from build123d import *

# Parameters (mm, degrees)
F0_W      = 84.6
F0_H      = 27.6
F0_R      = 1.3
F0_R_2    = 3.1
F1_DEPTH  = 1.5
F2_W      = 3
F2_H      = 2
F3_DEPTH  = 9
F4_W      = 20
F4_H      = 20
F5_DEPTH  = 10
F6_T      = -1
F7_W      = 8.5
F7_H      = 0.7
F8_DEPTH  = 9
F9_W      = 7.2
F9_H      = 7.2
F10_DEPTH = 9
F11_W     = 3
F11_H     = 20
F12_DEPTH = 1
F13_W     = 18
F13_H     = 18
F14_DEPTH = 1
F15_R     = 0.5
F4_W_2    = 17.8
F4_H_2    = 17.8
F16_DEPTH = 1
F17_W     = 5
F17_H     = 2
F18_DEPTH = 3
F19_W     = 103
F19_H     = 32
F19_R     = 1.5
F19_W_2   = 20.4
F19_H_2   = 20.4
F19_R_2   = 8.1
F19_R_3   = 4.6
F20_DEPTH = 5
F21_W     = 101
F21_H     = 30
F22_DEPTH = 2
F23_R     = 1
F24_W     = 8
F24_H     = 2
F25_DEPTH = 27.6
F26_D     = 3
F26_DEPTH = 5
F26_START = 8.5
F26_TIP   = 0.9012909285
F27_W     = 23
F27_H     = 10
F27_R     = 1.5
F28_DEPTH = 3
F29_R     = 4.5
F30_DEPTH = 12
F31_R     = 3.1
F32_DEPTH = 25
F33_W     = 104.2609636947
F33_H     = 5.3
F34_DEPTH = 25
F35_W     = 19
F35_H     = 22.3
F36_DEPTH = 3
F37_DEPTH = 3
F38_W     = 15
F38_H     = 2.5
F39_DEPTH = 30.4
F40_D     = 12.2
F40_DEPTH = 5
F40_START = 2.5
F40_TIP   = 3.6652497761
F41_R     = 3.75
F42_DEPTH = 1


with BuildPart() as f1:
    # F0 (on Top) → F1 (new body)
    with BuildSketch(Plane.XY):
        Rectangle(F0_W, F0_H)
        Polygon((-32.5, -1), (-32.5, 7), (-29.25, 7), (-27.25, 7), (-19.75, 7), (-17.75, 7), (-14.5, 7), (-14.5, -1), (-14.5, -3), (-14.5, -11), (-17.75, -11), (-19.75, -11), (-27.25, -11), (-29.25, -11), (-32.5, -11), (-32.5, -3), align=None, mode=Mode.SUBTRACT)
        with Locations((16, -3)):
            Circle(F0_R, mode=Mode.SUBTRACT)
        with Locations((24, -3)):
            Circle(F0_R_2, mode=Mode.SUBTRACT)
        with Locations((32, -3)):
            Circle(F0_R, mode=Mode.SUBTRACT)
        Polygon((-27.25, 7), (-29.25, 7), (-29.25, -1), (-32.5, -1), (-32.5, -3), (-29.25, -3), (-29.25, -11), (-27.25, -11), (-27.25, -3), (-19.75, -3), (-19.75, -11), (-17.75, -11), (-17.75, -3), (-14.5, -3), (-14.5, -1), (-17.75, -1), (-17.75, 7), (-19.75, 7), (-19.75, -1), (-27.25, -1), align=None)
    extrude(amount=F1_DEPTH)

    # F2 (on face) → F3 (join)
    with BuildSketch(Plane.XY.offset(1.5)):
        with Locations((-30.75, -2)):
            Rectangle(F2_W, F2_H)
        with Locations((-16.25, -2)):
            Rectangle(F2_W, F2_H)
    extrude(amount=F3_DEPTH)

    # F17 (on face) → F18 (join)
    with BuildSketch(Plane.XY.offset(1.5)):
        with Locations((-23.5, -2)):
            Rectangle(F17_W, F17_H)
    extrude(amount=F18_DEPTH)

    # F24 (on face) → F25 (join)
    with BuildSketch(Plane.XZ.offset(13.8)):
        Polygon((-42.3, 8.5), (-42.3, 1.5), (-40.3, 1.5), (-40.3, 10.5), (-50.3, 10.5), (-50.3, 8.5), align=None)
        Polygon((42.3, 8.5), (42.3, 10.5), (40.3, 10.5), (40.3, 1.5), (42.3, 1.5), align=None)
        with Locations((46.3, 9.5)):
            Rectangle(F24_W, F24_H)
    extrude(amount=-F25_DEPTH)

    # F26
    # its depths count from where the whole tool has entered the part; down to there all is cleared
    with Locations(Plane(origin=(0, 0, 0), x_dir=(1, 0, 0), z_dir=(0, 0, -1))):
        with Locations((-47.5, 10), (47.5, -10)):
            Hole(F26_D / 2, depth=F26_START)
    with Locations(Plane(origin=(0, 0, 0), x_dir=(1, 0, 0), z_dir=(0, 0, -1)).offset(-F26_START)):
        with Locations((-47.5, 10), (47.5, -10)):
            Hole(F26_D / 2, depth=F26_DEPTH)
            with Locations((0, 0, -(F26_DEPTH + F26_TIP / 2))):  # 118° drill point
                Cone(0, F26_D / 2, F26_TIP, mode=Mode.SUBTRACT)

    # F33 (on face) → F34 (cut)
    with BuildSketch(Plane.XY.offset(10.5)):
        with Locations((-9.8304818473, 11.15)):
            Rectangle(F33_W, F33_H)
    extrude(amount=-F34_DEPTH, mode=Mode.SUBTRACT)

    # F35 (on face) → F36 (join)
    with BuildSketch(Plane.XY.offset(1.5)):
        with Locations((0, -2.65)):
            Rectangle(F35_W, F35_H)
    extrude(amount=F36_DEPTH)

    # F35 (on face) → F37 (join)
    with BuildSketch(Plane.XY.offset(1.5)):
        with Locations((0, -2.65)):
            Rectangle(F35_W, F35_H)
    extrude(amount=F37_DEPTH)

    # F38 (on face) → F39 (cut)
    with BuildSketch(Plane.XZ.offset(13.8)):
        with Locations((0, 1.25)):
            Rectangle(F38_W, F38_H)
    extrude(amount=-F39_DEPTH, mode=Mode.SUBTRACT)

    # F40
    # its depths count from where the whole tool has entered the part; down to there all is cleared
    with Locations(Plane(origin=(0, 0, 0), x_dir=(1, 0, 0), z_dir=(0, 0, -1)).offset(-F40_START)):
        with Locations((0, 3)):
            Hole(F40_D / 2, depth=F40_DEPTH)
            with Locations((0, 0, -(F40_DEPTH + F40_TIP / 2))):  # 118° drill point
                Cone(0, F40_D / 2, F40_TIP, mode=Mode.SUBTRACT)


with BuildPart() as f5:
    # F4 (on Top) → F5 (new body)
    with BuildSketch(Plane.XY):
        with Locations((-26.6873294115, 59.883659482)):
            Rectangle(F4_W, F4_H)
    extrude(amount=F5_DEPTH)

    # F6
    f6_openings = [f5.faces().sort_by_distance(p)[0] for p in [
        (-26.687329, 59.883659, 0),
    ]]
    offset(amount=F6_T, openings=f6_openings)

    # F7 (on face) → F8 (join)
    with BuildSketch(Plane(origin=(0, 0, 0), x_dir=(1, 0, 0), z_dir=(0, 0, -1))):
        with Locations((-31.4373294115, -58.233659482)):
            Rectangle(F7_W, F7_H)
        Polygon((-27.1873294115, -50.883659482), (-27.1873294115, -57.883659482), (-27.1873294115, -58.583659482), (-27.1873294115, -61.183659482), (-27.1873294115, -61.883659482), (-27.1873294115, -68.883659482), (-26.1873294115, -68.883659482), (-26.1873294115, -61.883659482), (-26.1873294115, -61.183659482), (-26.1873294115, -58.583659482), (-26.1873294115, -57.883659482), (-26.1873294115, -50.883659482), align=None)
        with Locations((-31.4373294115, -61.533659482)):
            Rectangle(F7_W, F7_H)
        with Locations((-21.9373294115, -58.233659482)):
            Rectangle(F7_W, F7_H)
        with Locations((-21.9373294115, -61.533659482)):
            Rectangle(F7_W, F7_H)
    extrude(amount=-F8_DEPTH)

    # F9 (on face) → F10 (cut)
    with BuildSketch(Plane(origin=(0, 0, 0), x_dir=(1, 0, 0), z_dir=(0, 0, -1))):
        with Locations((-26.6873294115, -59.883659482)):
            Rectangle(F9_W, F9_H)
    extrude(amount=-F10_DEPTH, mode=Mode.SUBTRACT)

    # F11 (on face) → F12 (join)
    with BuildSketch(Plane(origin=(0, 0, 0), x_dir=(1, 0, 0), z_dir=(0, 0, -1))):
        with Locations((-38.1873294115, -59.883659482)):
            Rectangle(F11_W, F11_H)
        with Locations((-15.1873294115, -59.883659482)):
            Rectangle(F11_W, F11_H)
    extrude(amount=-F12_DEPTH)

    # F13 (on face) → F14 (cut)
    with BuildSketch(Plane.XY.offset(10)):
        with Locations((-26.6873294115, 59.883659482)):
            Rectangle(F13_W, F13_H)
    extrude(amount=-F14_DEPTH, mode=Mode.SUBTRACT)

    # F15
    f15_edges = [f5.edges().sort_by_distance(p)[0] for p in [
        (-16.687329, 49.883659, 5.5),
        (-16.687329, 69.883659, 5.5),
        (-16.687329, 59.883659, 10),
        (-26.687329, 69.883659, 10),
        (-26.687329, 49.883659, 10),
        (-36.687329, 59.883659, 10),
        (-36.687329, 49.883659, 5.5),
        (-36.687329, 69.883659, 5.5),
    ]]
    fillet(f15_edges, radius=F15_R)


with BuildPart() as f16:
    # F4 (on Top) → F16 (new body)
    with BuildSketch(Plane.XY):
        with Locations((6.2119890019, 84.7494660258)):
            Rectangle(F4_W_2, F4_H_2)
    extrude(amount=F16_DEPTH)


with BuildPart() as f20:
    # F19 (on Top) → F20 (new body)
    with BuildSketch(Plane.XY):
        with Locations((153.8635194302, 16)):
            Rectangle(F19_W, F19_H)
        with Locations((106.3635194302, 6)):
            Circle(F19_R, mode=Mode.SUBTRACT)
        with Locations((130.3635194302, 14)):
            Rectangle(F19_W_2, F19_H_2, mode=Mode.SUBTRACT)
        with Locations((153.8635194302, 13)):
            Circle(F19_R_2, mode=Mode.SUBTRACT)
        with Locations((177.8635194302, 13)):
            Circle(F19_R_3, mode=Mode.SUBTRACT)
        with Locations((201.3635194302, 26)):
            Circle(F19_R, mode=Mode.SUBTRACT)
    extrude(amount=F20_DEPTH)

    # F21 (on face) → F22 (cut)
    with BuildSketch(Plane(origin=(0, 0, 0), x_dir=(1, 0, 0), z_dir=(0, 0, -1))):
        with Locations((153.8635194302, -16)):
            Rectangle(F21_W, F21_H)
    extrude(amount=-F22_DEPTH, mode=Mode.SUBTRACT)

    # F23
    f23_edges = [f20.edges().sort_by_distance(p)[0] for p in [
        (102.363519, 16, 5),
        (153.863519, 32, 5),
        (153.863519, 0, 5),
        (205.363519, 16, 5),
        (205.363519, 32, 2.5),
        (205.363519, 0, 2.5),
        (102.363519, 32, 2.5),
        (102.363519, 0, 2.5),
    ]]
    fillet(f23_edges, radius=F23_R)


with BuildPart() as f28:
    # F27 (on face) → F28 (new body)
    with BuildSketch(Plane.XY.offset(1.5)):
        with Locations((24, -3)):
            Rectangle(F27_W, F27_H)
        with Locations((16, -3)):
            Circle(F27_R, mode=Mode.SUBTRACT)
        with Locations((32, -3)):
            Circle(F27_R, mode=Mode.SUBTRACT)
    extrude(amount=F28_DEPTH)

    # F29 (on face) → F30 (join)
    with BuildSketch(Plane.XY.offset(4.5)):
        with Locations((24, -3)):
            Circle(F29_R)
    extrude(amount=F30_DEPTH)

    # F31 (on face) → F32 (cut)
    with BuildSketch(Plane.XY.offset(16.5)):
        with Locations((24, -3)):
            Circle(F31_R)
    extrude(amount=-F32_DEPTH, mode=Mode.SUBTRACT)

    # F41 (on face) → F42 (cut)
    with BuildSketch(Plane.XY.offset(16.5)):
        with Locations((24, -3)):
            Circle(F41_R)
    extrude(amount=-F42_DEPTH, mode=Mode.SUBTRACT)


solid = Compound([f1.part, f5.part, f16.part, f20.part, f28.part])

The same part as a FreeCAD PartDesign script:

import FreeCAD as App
import Part
import Sketcher
Q = App.Units.Quantity


def edges_at(feature, points):
    """Names of the edges that pass closest to the given points."""
    edges = feature.Shape.Edges
    near = lambda p: min(range(len(edges)), key=lambda i: edges[i].distToShape(Part.Vertex(*p))[0])
    return sorted({f"Edge{near(p) + 1}" for p in points})


def faces_at(feature, points):
    """Names of the faces that lie closest to the given points."""
    faces = feature.Shape.Faces
    near = lambda p: min(range(len(faces)), key=lambda i: faces[i].distToShape(Part.Vertex(*p))[0])
    return sorted({f"Face{near(p) + 1}" for p in points})


def add_polygon(sketch, points):
    """Adds a closed chain of lines whose ends are joined by coincident constraints."""
    first, n = sketch.GeometryCount, len(points)
    for a, b in zip(points, points[1:] + points[:1]):
        sketch.addGeometry(Part.LineSegment(App.Vector(*a, 0), App.Vector(*b, 0)), False)
    for i in range(n):
        sketch.addConstraint(Sketcher.Constraint("Coincident", first + i, 2, first + (i + 1) % n, 1))

doc = App.newDocument("Part")
params = doc.addObject("Spreadsheet::Sheet", "Params")
for row, (alias, value) in enumerate([
    ("sketch1_diameter", "2.6 mm"),
    ("sketch1_diameter2", "6.2 mm"),
    ("sketch1_height", "8 mm"),
    ("sketch1_width", "84.6 mm"),
    ("sketch1_width2", "7.5 mm"),
    ("pad1_length", "1.5 mm"),
    ("sketch2_width", "3 mm"),
    ("sketch2_height", "2 mm"),
    ("pad2_length", "9 mm"),
    ("sketch3_width", "5 mm"),
    ("sketch3_height", "2 mm"),
    ("pad3_length", "3 mm"),
    ("sketch4_width", "2 mm"),
    ("sketch4_width2", "10 mm"),
    ("sketch4_height", "7 mm"),
    ("pad4_length", "27.6 mm"),
    ("sketch5_diameter", "3 mm"),
    ("hole_diameter", "3 mm"),
    ("hole_depth", "8.5 mm"),
    ("sketch6_diameter", "3 mm"),
    ("hole2_diameter", "3 mm"),
    ("hole2_depth", "5 mm"),
    ("sketch7_height", "5.3 mm"),
    ("pocket1_length", "25 mm"),
    ("sketch8_width", "19 mm"),
    ("sketch8_height", "22.3 mm"),
    ("pad5_length", "3 mm"),
    ("sketch9_width", "19 mm"),
    ("sketch9_height", "22.3 mm"),
    ("pad6_length", "3 mm"),
    ("sketch10_width", "15 mm"),
    ("sketch10_height", "2.5 mm"),
    ("pocket2_length", "30.4 mm"),
    ("sketch11_diameter", "12.2 mm"),
    ("hole3_diameter", "12.2 mm"),
    ("hole3_depth", "5 mm"),
    ("sketch12_width", "20 mm"),
    ("pad7_length", "10 mm"),
    ("thickness_wall", "1 mm"),
    ("sketch13_width", "1 mm"),
    ("sketch13_height", "7 mm"),
    ("sketch13_width2", "8.5 mm"),
    ("sketch13_height2", "0.7 mm"),
    ("sketch13_height3", "2.6 mm"),
    ("pad8_length", "9 mm"),
    ("sketch14_width", "7.2 mm"),
    ("pocket3_length", "9 mm"),
    ("sketch15_width", "3 mm"),
    ("sketch15_height", "20 mm"),
    ("pad9_length", "1 mm"),
    ("sketch16_width", "18 mm"),
    ("pocket4_length", "1 mm"),
    ("fillet_radius", "0.5 mm"),
    ("sketch17_width", "17.8 mm"),
    ("pad10_length", "1 mm"),
    ("sketch18_diameter", "3 mm"),
    ("sketch18_diameter2", "16.2 mm"),
    ("sketch18_diameter3", "9.2 mm"),
    ("sketch18_width", "103 mm"),
    ("sketch18_height", "32 mm"),
    ("pad11_length", "5 mm"),
    ("sketch19_width", "101 mm"),
    ("sketch19_height", "30 mm"),
    ("pocket5_length", "2 mm"),
    ("fillet2_radius", "1 mm"),
    ("sketch20_diameter", "3 mm"),
    ("sketch20_width", "23 mm"),
    ("sketch20_height", "10 mm"),
    ("pad12_length", "3 mm"),
    ("sketch21_diameter", "9 mm"),
    ("pad13_length", "12 mm"),
    ("sketch22_diameter", "6.2 mm"),
    ("pocket6_length", "25 mm"),
    ("sketch23_diameter", "7.5 mm"),
    ("pocket7_length", "1 mm"),
], start=1):
    params.set(f"A{row}", alias)
    params.set(f"B{row}", "=" + value)
    params.setAlias(f"B{row}", alias)

body = doc.addObject("PartDesign::Body", "Body")

# Sketch on XY plane
sketch1 = doc.addObject("Sketcher::SketchObject", "Sketch")
body.addObject(sketch1)
sketch1.AttachmentSupport = (doc.XY_Plane, [""])
sketch1.MapMode = "FlatFace"
add_polygon(sketch1, [(-42.3, 13.8), (-42.3, -13.8), (42.3, -13.8), (42.3, 13.8)])  # lines 0-3
sketch1.addGeometry(Part.Circle(App.Vector(16, -3, 0), App.Vector(0, 0, 1), 1.3), False)  # 4
sketch1.addGeometry(Part.Circle(App.Vector(24, -3, 0), App.Vector(0, 0, 1), 3.1), False)  # 5
sketch1.addGeometry(Part.Circle(App.Vector(32, -3, 0), App.Vector(0, 0, 1), 1.3), False)  # 6
add_polygon(sketch1, [(-32.5, -11), (-32.5, -3), (-29.2, -3), (-29.2, -11)])  # lines 7-10
add_polygon(sketch1, [(-32.5, -1), (-32.5, 7), (-29.2, 7), (-29.2, -1)])  # lines 11-14
add_polygon(sketch1, [(-14.5, -11), (-17.8, -11), (-17.8, -3), (-14.5, -3)])  # lines 15-18
add_polygon(sketch1, [(-19.8, -11), (-27.2, -11), (-27.2, -3), (-19.8, -3)])  # lines 19-22
add_polygon(sketch1, [(-27.2, 7), (-19.8, 7), (-19.8, -1), (-27.2, -1)])  # lines 23-26
add_polygon(sketch1, [(-17.8, 7), (-14.5, 7), (-14.5, -1), (-17.8, -1)])  # lines 27-30
sketch1.addConstraint([
    Sketcher.Constraint("Vertical", 0),
    Sketcher.Constraint("Horizontal", 1),
    Sketcher.Constraint("Vertical", 2),
    Sketcher.Constraint("Horizontal", 3),
    Sketcher.Constraint("Vertical", 7),
    Sketcher.Constraint("Horizontal", 8),
    Sketcher.Constraint("Vertical", 9),
    Sketcher.Constraint("Horizontal", 10),
    Sketcher.Constraint("Vertical", 11),
    Sketcher.Constraint("Horizontal", 12),
    Sketcher.Constraint("Vertical", 13),
    Sketcher.Constraint("Horizontal", 14),
    Sketcher.Constraint("Horizontal", 15),
    Sketcher.Constraint("Vertical", 16),
    Sketcher.Constraint("Horizontal", 17),
    Sketcher.Constraint("Vertical", 18),
    Sketcher.Constraint("Horizontal", 19),
    Sketcher.Constraint("Vertical", 20),
    Sketcher.Constraint("Horizontal", 21),
    Sketcher.Constraint("Vertical", 22),
    Sketcher.Constraint("Horizontal", 23),
    Sketcher.Constraint("Vertical", 24),
    Sketcher.Constraint("Horizontal", 25),
    Sketcher.Constraint("Vertical", 26),
    Sketcher.Constraint("Horizontal", 27),
    Sketcher.Constraint("Vertical", 28),
    Sketcher.Constraint("Horizontal", 29),
    Sketcher.Constraint("Vertical", 30),
    Sketcher.Constraint("Equal", 4, 6),
    Sketcher.Constraint("Symmetric", 0, 2, 2, 2, -1, 1),
    Sketcher.Constraint("Horizontal", 4, 3, 5, 3),
    Sketcher.Constraint("Horizontal", 5, 3, 6, 3),
    Sketcher.Constraint("Horizontal", 6, 3, 7, 2),
    Sketcher.Constraint("Horizontal", 10, 2, 15, 2),
    Sketcher.Constraint("Horizontal", 8, 2, 16, 2),
    Sketcher.Constraint("Horizontal", 18, 2, 19, 2),
    Sketcher.Constraint("Horizontal", 17, 2, 20, 2),
    Sketcher.Constraint("Horizontal", 12, 2, 23, 2),
    Sketcher.Constraint("Horizontal", 14, 2, 24, 2),
    Sketcher.Constraint("Horizontal", 26, 2, 27, 2),
    Sketcher.Constraint("Horizontal", 25, 2, 28, 2),
    Sketcher.Constraint("Vertical", 10, 2, 11, 2),
    Sketcher.Constraint("Vertical", 9, 2, 12, 2),
    Sketcher.Constraint("Vertical", 22, 2, 23, 2),
    Sketcher.Constraint("Vertical", 20, 2, 25, 2),
    Sketcher.Constraint("Vertical", 18, 2, 27, 2),
    Sketcher.Constraint("Vertical", 16, 2, 29, 2),
    Sketcher.Constraint("Equal", 14, 15),
    Sketcher.Constraint("Equal", 9, 11),
    Sketcher.Constraint("Diameter", 4, Q("2.6 mm")),
    Sketcher.Constraint("Diameter", 5, Q("6.2 mm")),
    Sketcher.Constraint("DistanceY", 7, 1, 7, 2, Q("8 mm")),
    Sketcher.Constraint("DistanceX", 1, 1, 1, 2, Q("84.6 mm")),
    Sketcher.Constraint("DistanceX", 19, 2, 19, 1, Q("7.5 mm")),
    Sketcher.Constraint("DistanceY", 0, 2, 0, 1, Q("27.6 mm")),
    Sketcher.Constraint("DistanceX", -1, 1, 4, 3, Q("16 mm")),
    Sketcher.Constraint("DistanceY", 4, 3, -1, 1, Q("3 mm")),
    Sketcher.Constraint("DistanceX", -1, 1, 5, 3, Q("24 mm")),
    Sketcher.Constraint("DistanceX", -1, 1, 6, 3, Q("32 mm")),
    Sketcher.Constraint("DistanceY", -1, 1, 11, 2, Q("7 mm")),
    Sketcher.Constraint("DistanceX", 9, 2, 19, 2, Q("2 mm")),
    Sketcher.Constraint("DistanceX", 21, 2, 16, 2, Q("2 mm")),
    Sketcher.Constraint("DistanceX", 8, 1, 8, 2, Q("3.25 mm")),
    Sketcher.Constraint("DistanceX", 7, 2, -1, 1, Q("32.5 mm")),
])
sketch1.setExpression("Constraints[77]", "Params.sketch1_diameter")
sketch1.setExpression("Constraints[78]", "Params.sketch1_diameter2")
sketch1.setExpression("Constraints[79]", "Params.sketch1_height")
sketch1.setExpression("Constraints[80]", "Params.sketch1_width")
sketch1.setExpression("Constraints[81]", "Params.sketch1_width2")
pad1 = doc.addObject("PartDesign::Pad", "Pad")
body.addObject(pad1)
pad1.Profile = sketch1
pad1.setExpression("Length", "Params.pad1_length")

# Sketch on XY plane
sketch2 = doc.addObject("Sketcher::SketchObject", "Sketch001")
body.addObject(sketch2)
sketch2.AttachmentSupport = (doc.XY_Plane, [""])
sketch2.MapMode = "FlatFace"
sketch2.AttachmentOffset = App.Placement(App.Vector(0, 0, 1.5), App.Rotation())
add_polygon(sketch2, [(-32.2, -1), (-32.2, -3), (-29.2, -3), (-29.2, -1)])  # lines 0-3
add_polygon(sketch2, [(-17.8, -1), (-17.8, -3), (-14.8, -3), (-14.8, -1)])  # lines 4-7
sketch2.addConstraint([
    Sketcher.Constraint("Vertical", 0),
    Sketcher.Constraint("Horizontal", 1),
    Sketcher.Constraint("Vertical", 2),
    Sketcher.Constraint("Horizontal", 3),
    Sketcher.Constraint("Vertical", 4),
    Sketcher.Constraint("Horizontal", 5),
    Sketcher.Constraint("Vertical", 6),
    Sketcher.Constraint("Horizontal", 7),
    Sketcher.Constraint("Horizontal", 1, 2, 4, 2),
    Sketcher.Constraint("Horizontal", 3, 2, 6, 2),
    Sketcher.Constraint("Equal", 3, 5),
    Sketcher.Constraint("DistanceX", 1, 1, 1, 2, Q("3 mm")),
    Sketcher.Constraint("DistanceY", 0, 2, 0, 1, Q("2 mm")),
    Sketcher.Constraint("DistanceY", 0, 2, -1, 1, Q("3 mm")),
    Sketcher.Constraint("DistanceX", 1, 2, 4, 2, Q("11.5 mm")),
    Sketcher.Constraint("DistanceX", 0, 2, -1, 1, Q("32.25 mm")),
])
sketch2.setExpression("Constraints[19]", "Params.sketch2_width")
sketch2.setExpression("Constraints[20]", "Params.sketch2_height")
pad2 = doc.addObject("PartDesign::Pad", "Pad001")
body.addObject(pad2)
pad2.Profile = sketch2
pad2.setExpression("Length", "Params.pad2_length")

# Sketch on XY plane
sketch3 = doc.addObject("Sketcher::SketchObject", "Sketch002")
body.addObject(sketch3)
sketch3.AttachmentSupport = (doc.XY_Plane, [""])
sketch3.MapMode = "FlatFace"
sketch3.AttachmentOffset = App.Placement(App.Vector(0, 0, 1.5), App.Rotation())
add_polygon(sketch3, [(-26, -1), (-26, -3), (-21, -3), (-21, -1)])  # lines 0-3
sketch3.addConstraint([
    Sketcher.Constraint("Vertical", 0),
    Sketcher.Constraint("Horizontal", 1),
    Sketcher.Constraint("Vertical", 2),
    Sketcher.Constraint("Horizontal", 3),
    Sketcher.Constraint("DistanceX", 1, 1, 1, 2, Q("5 mm")),
    Sketcher.Constraint("DistanceY", 0, 2, 0, 1, Q("2 mm")),
    Sketcher.Constraint("DistanceX", 0, 2, -1, 1, Q("26 mm")),
    Sketcher.Constraint("DistanceY", 0, 2, -1, 1, Q("3 mm")),
])
sketch3.setExpression("Constraints[8]", "Params.sketch3_width")
sketch3.setExpression("Constraints[9]", "Params.sketch3_height")
pad3 = doc.addObject("PartDesign::Pad", "Pad002")
body.addObject(pad3)
pad3.Profile = sketch3
pad3.setExpression("Length", "Params.pad3_length")

# Sketch on XZ plane
sketch4 = doc.addObject("Sketcher::SketchObject", "Sketch003")
body.addObject(sketch4)
sketch4.AttachmentSupport = (doc.XZ_Plane, [""])
sketch4.MapMode = "FlatFace"
sketch4.AttachmentOffset = App.Placement(App.Vector(0, 0, 13.8), App.Rotation())
add_polygon(sketch4, [(-42.3, 8.5), (-42.3, 1.5), (-40.3, 1.5), (-40.3, 10.5), (-50.3, 10.5), (-50.3, 8.5)])  # lines 0-5
add_polygon(sketch4, [(40.3, 10.5), (40.3, 1.5), (42.3, 1.5), (42.3, 8.5), (50.3, 8.5), (50.3, 10.5)])  # lines 6-11
sketch4.addConstraint([
    Sketcher.Constraint("Vertical", 0),
    Sketcher.Constraint("Horizontal", 1),
    Sketcher.Constraint("Vertical", 2),
    Sketcher.Constraint("Horizontal", 3),
    Sketcher.Constraint("Vertical", 4),
    Sketcher.Constraint("Horizontal", 5),
    Sketcher.Constraint("Vertical", 6),
    Sketcher.Constraint("Horizontal", 7),
    Sketcher.Constraint("Vertical", 8),
    Sketcher.Constraint("Horizontal", 9),
    Sketcher.Constraint("Vertical", 10),
    Sketcher.Constraint("Horizontal", 11),
    Sketcher.Constraint("Symmetric", 1, 2, 6, 2, -2),
    Sketcher.Constraint("Symmetric", 5, 2, 8, 2, -2),
    Sketcher.Constraint("Symmetric", 3, 2, 10, 2, -2),
    Sketcher.Constraint("Equal", 7, 4),
    Sketcher.Constraint("DistanceX", 1, 1, 1, 2, Q("2 mm")),
    Sketcher.Constraint("DistanceX", 3, 2, 3, 1, Q("10 mm")),
    Sketcher.Constraint("DistanceY", 0, 2, 0, 1, Q("7 mm")),
    Sketcher.Constraint("DistanceX", 0, 2, -1, 1, Q("42.3 mm")),
    Sketcher.Constraint("DistanceY", -1, 1, 0, 2, Q("1.5 mm")),
])
sketch4.setExpression("Constraints[28]", "Params.sketch4_width")
sketch4.setExpression("Constraints[29]", "Params.sketch4_width2")
sketch4.setExpression("Constraints[30]", "Params.sketch4_height")
pad4 = doc.addObject("PartDesign::Pad", "Pad003")
body.addObject(pad4)
pad4.Profile = sketch4
pad4.setExpression("Length", "Params.pad4_length")
pad4.Reversed = True

# Sketch on XY plane
sketch5 = doc.addObject("Sketcher::SketchObject", "Sketch004")
body.addObject(sketch5)
sketch5.AttachmentSupport = (doc.XY_Plane, [""])
sketch5.MapMode = "FlatFace"
sketch5.addGeometry([
    Part.Circle(App.Vector(-47.5, -10, 0), App.Vector(0, 0, 1), 1.5),
    Part.Circle(App.Vector(47.5, 10, 0), App.Vector(0, 0, 1), 1.5),
], False)
sketch5.addConstraint([
    Sketcher.Constraint("Equal", 0, 1),
    Sketcher.Constraint("Symmetric", 0, 3, 1, 3, -1, 1),
    Sketcher.Constraint("Diameter", 0, Q("3 mm")),
    Sketcher.Constraint("DistanceY", 0, 3, -1, 1, Q("10 mm")),
    Sketcher.Constraint("DistanceX", 0, 3, 1, 3, Q("95 mm")),
])
sketch5.setExpression("Constraints[2]", "Params.sketch5_diameter")
doc.recompute()
hole = doc.addObject("PartDesign::Hole", "Hole")
body.addObject(hole)
hole.Profile = sketch5
hole.ThreadType = "None"
hole.setExpression("Diameter", "Params.hole_diameter")
hole.DepthType = "Dimension"
hole.setExpression("Depth", "Params.hole_depth")
hole.DrillPoint = "Flat"
hole.Reversed = True

# Sketch on XY plane
sketch6 = doc.addObject("Sketcher::SketchObject", "Sketch005")
body.addObject(sketch6)
sketch6.AttachmentSupport = (doc.XY_Plane, [""])
sketch6.MapMode = "FlatFace"
sketch6.AttachmentOffset = App.Placement(App.Vector(0, 0, 8.5), App.Rotation())
sketch6.addGeometry([
    Part.Circle(App.Vector(-47.5, -10, 0), App.Vector(0, 0, 1), 1.5),
    Part.Circle(App.Vector(47.5, 10, 0), App.Vector(0, 0, 1), 1.5),
], False)
sketch6.addConstraint([
    Sketcher.Constraint("Equal", 0, 1),
    Sketcher.Constraint("Symmetric", 0, 3, 1, 3, -1, 1),
    Sketcher.Constraint("Diameter", 0, Q("3 mm")),
    Sketcher.Constraint("DistanceY", 0, 3, -1, 1, Q("10 mm")),
    Sketcher.Constraint("DistanceX", 0, 3, 1, 3, Q("95 mm")),
])
sketch6.setExpression("Constraints[2]", "Params.sketch6_diameter")
doc.recompute()
hole2 = doc.addObject("PartDesign::Hole", "Hole001")
body.addObject(hole2)
hole2.Profile = sketch6
hole2.ThreadType = "None"
hole2.setExpression("Diameter", "Params.hole2_diameter")
hole2.DepthType = "Dimension"
hole2.setExpression("Depth", "Params.hole2_depth")
hole2.DrillPoint = "Angled"
hole2.DrillPointAngle = 118
hole2.Reversed = True

# Sketch on XY plane
sketch7 = doc.addObject("Sketcher::SketchObject", "Sketch006")
body.addObject(sketch7)
sketch7.AttachmentSupport = (doc.XY_Plane, [""])
sketch7.MapMode = "FlatFace"
sketch7.AttachmentOffset = App.Placement(App.Vector(0, 0, 10.5), App.Rotation())
add_polygon(sketch7, [(-62, 14), (-62, 8), (42, 8), (42, 14)])  # lines 0-3
sketch7.addConstraint([
    Sketcher.Constraint("Vertical", 0),
    Sketcher.Constraint("Horizontal", 1),
    Sketcher.Constraint("Vertical", 2),
    Sketcher.Constraint("Horizontal", 3),
    Sketcher.Constraint("DistanceY", 0, 2, 0, 1, Q("5.3 mm")),
    Sketcher.Constraint("DistanceY", -1, 1, 0, 2, Q("8.5 mm")),
    Sketcher.Constraint("DistanceX", -1, 1, 1, 2, Q("42.3 mm")),
    Sketcher.Constraint("DistanceX", 1, 1, 1, 2, Q("104.260964 mm")),
])
sketch7.setExpression("Constraints[8]", "Params.sketch7_height")
pocket1 = doc.addObject("PartDesign::Pocket", "Pocket")
body.addObject(pocket1)
pocket1.Profile = sketch7
pocket1.setExpression("Length", "Params.pocket1_length")

# Sketch on XY plane
sketch8 = doc.addObject("Sketcher::SketchObject", "Sketch007")
body.addObject(sketch8)
sketch8.AttachmentSupport = (doc.XY_Plane, [""])
sketch8.MapMode = "FlatFace"
sketch8.AttachmentOffset = App.Placement(App.Vector(0, 0, 1.5), App.Rotation())
add_polygon(sketch8, [(-10, 8), (-10, -14), (10, -14), (10, 8)])  # lines 0-3
sketch8.addConstraint([
    Sketcher.Constraint("Vertical", 0),
    Sketcher.Constraint("Horizontal", 1),
    Sketcher.Constraint("Vertical", 2),
    Sketcher.Constraint("Horizontal", 3),
    Sketcher.Constraint("DistanceX", 1, 1, 1, 2, Q("19 mm")),
    Sketcher.Constraint("DistanceY", 0, 2, 0, 1, Q("22.3 mm")),
    Sketcher.Constraint("DistanceX", 0, 2, -1, 1, Q("9.5 mm")),
    Sketcher.Constraint("DistanceY", 0, 2, -1, 1, Q("13.8 mm")),
])
sketch8.setExpression("Constraints[8]", "Params.sketch8_width")
sketch8.setExpression("Constraints[9]", "Params.sketch8_height")
pad5 = doc.addObject("PartDesign::Pad", "Pad004")
body.addObject(pad5)
pad5.Profile = sketch8
pad5.setExpression("Length", "Params.pad5_length")

# Sketch on XY plane
sketch9 = doc.addObject("Sketcher::SketchObject", "Sketch008")
body.addObject(sketch9)
sketch9.AttachmentSupport = (doc.XY_Plane, [""])
sketch9.MapMode = "FlatFace"
sketch9.AttachmentOffset = App.Placement(App.Vector(0, 0, 1.5), App.Rotation())
add_polygon(sketch9, [(-10, 8), (-10, -14), (10, -14), (10, 8)])  # lines 0-3
sketch9.addConstraint([
    Sketcher.Constraint("Vertical", 0),
    Sketcher.Constraint("Horizontal", 1),
    Sketcher.Constraint("Vertical", 2),
    Sketcher.Constraint("Horizontal", 3),
    Sketcher.Constraint("DistanceX", 1, 1, 1, 2, Q("19 mm")),
    Sketcher.Constraint("DistanceY", 0, 2, 0, 1, Q("22.3 mm")),
    Sketcher.Constraint("DistanceX", 0, 2, -1, 1, Q("9.5 mm")),
    Sketcher.Constraint("DistanceY", 0, 2, -1, 1, Q("13.8 mm")),
])
sketch9.setExpression("Constraints[8]", "Params.sketch9_width")
sketch9.setExpression("Constraints[9]", "Params.sketch9_height")
pad6 = doc.addObject("PartDesign::Pad", "Pad005")
body.addObject(pad6)
pad6.Profile = sketch9
pad6.setExpression("Length", "Params.pad6_length")

# Sketch on XZ plane
sketch10 = doc.addObject("Sketcher::SketchObject", "Sketch009")
body.addObject(sketch10)
sketch10.AttachmentSupport = (doc.XZ_Plane, [""])
sketch10.MapMode = "FlatFace"
sketch10.AttachmentOffset = App.Placement(App.Vector(0, 0, 13.8), App.Rotation())
add_polygon(sketch10, [(-7.5, 2.5), (-7.5, 0), (7.5, 0), (7.5, 2.5)])  # lines 0-3
sketch10.addConstraint([
    Sketcher.Constraint("Vertical", 0),
    Sketcher.Constraint("Horizontal", 1),
    Sketcher.Constraint("Vertical", 2),
    Sketcher.Constraint("Horizontal", 3),
    Sketcher.Constraint("Symmetric", 0, 2, 1, 2, -1, 1),
    Sketcher.Constraint("DistanceX", 1, 1, 1, 2, Q("15 mm")),
    Sketcher.Constraint("DistanceY", 0, 2, 0, 1, Q("2.5 mm")),
])
sketch10.setExpression("Constraints[9]", "Params.sketch10_width")
sketch10.setExpression("Constraints[10]", "Params.sketch10_height")
pocket2 = doc.addObject("PartDesign::Pocket", "Pocket001")
body.addObject(pocket2)
pocket2.Profile = sketch10
pocket2.setExpression("Length", "Params.pocket2_length")

# Sketch on XY plane
sketch11 = doc.addObject("Sketcher::SketchObject", "Sketch010")
body.addObject(sketch11)
sketch11.AttachmentSupport = (doc.XY_Plane, [""])
sketch11.MapMode = "FlatFace"
sketch11.AttachmentOffset = App.Placement(App.Vector(0, 0, 2.5), App.Rotation())
sketch11.addGeometry(Part.Circle(App.Vector(0, -3, 0), App.Vector(0, 0, 1), 6), False)
sketch11.addConstraint([
    Sketcher.Constraint("PointOnObject", 0, 3, -2),
    Sketcher.Constraint("Diameter", 0, Q("12.2 mm")),
    Sketcher.Constraint("DistanceY", 0, 3, -1, 1, Q("3 mm")),
])
sketch11.setExpression("Constraints[1]", "Params.sketch11_diameter")
doc.recompute()
hole3 = doc.addObject("PartDesign::Hole", "Hole002")
body.addObject(hole3)
hole3.Profile = sketch11
hole3.ThreadType = "None"
hole3.setExpression("Diameter", "Params.hole3_diameter")
hole3.DepthType = "Dimension"
hole3.setExpression("Depth", "Params.hole3_depth")
hole3.DrillPoint = "Angled"
hole3.DrillPointAngle = 118
hole3.Reversed = True
body2 = doc.addObject("PartDesign::Body", "Body001")

# Sketch on XY plane
sketch12 = doc.addObject("Sketcher::SketchObject", "Sketch011")
body2.addObject(sketch12)
sketch12.AttachmentSupport = (doc.getObject("XY_Plane001"), [""])
sketch12.MapMode = "FlatFace"
add_polygon(sketch12, [(-37, 70), (-37, 50), (-17, 50), (-17, 70)])  # lines 0-3
sketch12.addConstraint([
    Sketcher.Constraint("Vertical", 0),
    Sketcher.Constraint("Horizontal", 1),
    Sketcher.Constraint("Vertical", 2),
    Sketcher.Constraint("Horizontal", 3),
    Sketcher.Constraint("Equal", 3, 0),
    Sketcher.Constraint("DistanceX", 1, 1, 1, 2, Q("20 mm")),
    Sketcher.Constraint("DistanceX", 0, 2, -1, 1, Q("36.687329 mm")),
    Sketcher.Constraint("DistanceY", -1, 1, 0, 2, Q("49.883659 mm")),
])
sketch12.setExpression("Constraints[9]", "Params.sketch12_width")
pad7 = doc.addObject("PartDesign::Pad", "Pad006")
body2.addObject(pad7)
pad7.Profile = sketch12
pad7.setExpression("Length", "Params.pad7_length")
doc.recompute()

thickness = doc.addObject("PartDesign::Thickness", "Thickness")
body2.addObject(thickness)
thickness.Base = (pad7, faces_at(pad7, [(-26.687, 59.884, 0)]))
thickness.setExpression("Value", "Params.thickness_wall")
thickness.Reversed = True
thickness.Join = "Arc"

# Sketch on XY plane
sketch13 = doc.addObject("Sketcher::SketchObject", "Sketch012")
body2.addObject(sketch13)
sketch13.AttachmentSupport = (doc.getObject("XY_Plane001"), [""])
sketch13.MapMode = "FlatFace"
add_polygon(sketch13, [(-35.7, 57.9), (-35.7, 58.6), (-27.2, 58.6), (-27.2, 61.2), (-35.7, 61.2), (-35.7, 61.9), (-27.2, 61.9), (-27.2, 68.9), (-26.2, 68.9), (-26.2, 61.9), (-17.7, 61.9), (-17.7, 61.2), (-26.2, 61.2), (-26.2, 58.6), (-17.7, 58.6), (-17.7, 57.9), (-26.2, 57.9), (-26.2, 50.9), (-27.2, 50.9), (-27.2, 57.9)])  # lines 0-19
sketch13.addConstraint([
    Sketcher.Constraint("Vertical", 0),
    Sketcher.Constraint("Horizontal", 1),
    Sketcher.Constraint("Vertical", 2),
    Sketcher.Constraint("Horizontal", 3),
    Sketcher.Constraint("Vertical", 4),
    Sketcher.Constraint("Horizontal", 5),
    Sketcher.Constraint("Vertical", 6),
    Sketcher.Constraint("Horizontal", 7),
    Sketcher.Constraint("Vertical", 8),
    Sketcher.Constraint("Horizontal", 9),
    Sketcher.Constraint("Vertical", 10),
    Sketcher.Constraint("Horizontal", 11),
    Sketcher.Constraint("Vertical", 12),
    Sketcher.Constraint("Horizontal", 13),
    Sketcher.Constraint("Vertical", 14),
    Sketcher.Constraint("Horizontal", 15),
    Sketcher.Constraint("Vertical", 16),
    Sketcher.Constraint("Horizontal", 17),
    Sketcher.Constraint("Vertical", 18),
    Sketcher.Constraint("Horizontal", 19),
    Sketcher.Constraint("Horizontal", 5, 2, 8, 2),
    Sketcher.Constraint("Horizontal", 3, 2, 10, 2),
    Sketcher.Constraint("Horizontal", 1, 2, 12, 2),
    Sketcher.Constraint("Horizontal", 15, 2, 18, 2),
    Sketcher.Constraint("Vertical", 0, 2, 3, 2),
    Sketcher.Constraint("Vertical", 2, 2, 5, 2),
    Sketcher.Constraint("Vertical", 8, 2, 11, 2),
    Sketcher.Constraint("Vertical", 10, 2, 13, 2),
    Sketcher.Constraint("Vertical", 12, 2, 15, 2),
    Sketcher.Constraint("Vertical", 6, 2, 17, 2),
    Sketcher.Constraint("Equal", 5, 9),
    Sketcher.Constraint("Equal", 0, 4),
    Sketcher.Constraint("Equal", 8, 16),
    Sketcher.Constraint("DistanceX", 7, 1, 7, 2, Q("1 mm")),
    Sketcher.Constraint("DistanceY", 6, 1, 6, 2, Q("7 mm")),
    Sketcher.Constraint("DistanceX", 1, 1, 1, 2, Q("8.5 mm")),
    Sketcher.Constraint("DistanceY", 0, 1, 0, 2, Q("0.7 mm")),
    Sketcher.Constraint("DistanceY", 2, 1, 2, 2, Q("2.6 mm")),
    Sketcher.Constraint("DistanceX", 0, 2, -1, 1, Q("35.687329 mm")),
    Sketcher.Constraint("DistanceY", -1, 1, 0, 2, Q("58.583659 mm")),
])
sketch13.setExpression("Constraints[53]", "Params.sketch13_width")
sketch13.setExpression("Constraints[54]", "Params.sketch13_height")
sketch13.setExpression("Constraints[55]", "Params.sketch13_width2")
sketch13.setExpression("Constraints[56]", "Params.sketch13_height2")
sketch13.setExpression("Constraints[57]", "Params.sketch13_height3")
pad8 = doc.addObject("PartDesign::Pad", "Pad007")
body2.addObject(pad8)
pad8.Profile = sketch13
pad8.setExpression("Length", "Params.pad8_length")

# Sketch on XY plane
sketch14 = doc.addObject("Sketcher::SketchObject", "Sketch013")
body2.addObject(sketch14)
sketch14.AttachmentSupport = (doc.getObject("XY_Plane001"), [""])
sketch14.MapMode = "FlatFace"
add_polygon(sketch14, [(-30, 56), (-30, 63), (-23, 63), (-23, 56)])  # lines 0-3
sketch14.addConstraint([
    Sketcher.Constraint("Vertical", 0),
    Sketcher.Constraint("Horizontal", 1),
    Sketcher.Constraint("Vertical", 2),
    Sketcher.Constraint("Horizontal", 3),
    Sketcher.Constraint("Equal", 3, 0),
    Sketcher.Constraint("DistanceX", 1, 1, 1, 2, Q("7.2 mm")),
    Sketcher.Constraint("DistanceX", 0, 2, -1, 1, Q("30.287329 mm")),
    Sketcher.Constraint("DistanceY", -1, 1, 0, 2, Q("63.483659 mm")),
])
sketch14.setExpression("Constraints[9]", "Params.sketch14_width")
pocket3 = doc.addObject("PartDesign::Pocket", "Pocket002")
body2.addObject(pocket3)
pocket3.Profile = sketch14
pocket3.setExpression("Length", "Params.pocket3_length")
pocket3.Reversed = True

# Sketch on XY plane
sketch15 = doc.addObject("Sketcher::SketchObject", "Sketch014")
body2.addObject(sketch15)
sketch15.AttachmentSupport = (doc.getObject("XY_Plane001"), [""])
sketch15.MapMode = "FlatFace"
add_polygon(sketch15, [(-39.7, 49.9), (-39.7, 69.9), (-36.7, 69.9), (-36.7, 49.9)])  # lines 0-3
add_polygon(sketch15, [(-16.7, 49.9), (-16.7, 69.9), (-13.7, 69.9), (-13.7, 49.9)])  # lines 4-7
sketch15.addConstraint([
    Sketcher.Constraint("Vertical", 0),
    Sketcher.Constraint("Horizontal", 1),
    Sketcher.Constraint("Vertical", 2),
    Sketcher.Constraint("Horizontal", 3),
    Sketcher.Constraint("Vertical", 4),
    Sketcher.Constraint("Horizontal", 5),
    Sketcher.Constraint("Vertical", 6),
    Sketcher.Constraint("Horizontal", 7),
    Sketcher.Constraint("Horizontal", 1, 2, 4, 2),
    Sketcher.Constraint("Horizontal", 3, 2, 6, 2),
    Sketcher.Constraint("Equal", 3, 5),
    Sketcher.Constraint("DistanceX", 1, 1, 1, 2, Q("3 mm")),
    Sketcher.Constraint("DistanceY", 0, 1, 0, 2, Q("20 mm")),
    Sketcher.Constraint("DistanceX", 1, 2, 4, 2, Q("20 mm")),
    Sketcher.Constraint("DistanceX", 0, 2, -1, 1, Q("39.687329 mm")),
    Sketcher.Constraint("DistanceY", -1, 1, 0, 2, Q("69.883659 mm")),
])
sketch15.setExpression("Constraints[19]", "Params.sketch15_width")
sketch15.setExpression("Constraints[20]", "Params.sketch15_height")
pad9 = doc.addObject("PartDesign::Pad", "Pad008")
body2.addObject(pad9)
pad9.Profile = sketch15
pad9.setExpression("Length", "Params.pad9_length")

# Sketch on XY plane
sketch16 = doc.addObject("Sketcher::SketchObject", "Sketch015")
body2.addObject(sketch16)
sketch16.AttachmentSupport = (doc.getObject("XY_Plane001"), [""])
sketch16.MapMode = "FlatFace"
sketch16.AttachmentOffset = App.Placement(App.Vector(0, 0, 10), App.Rotation())
add_polygon(sketch16, [(-36, 69), (-36, 51), (-18, 51), (-18, 69)])  # lines 0-3
sketch16.addConstraint([
    Sketcher.Constraint("Vertical", 0),
    Sketcher.Constraint("Horizontal", 1),
    Sketcher.Constraint("Vertical", 2),
    Sketcher.Constraint("Horizontal", 3),
    Sketcher.Constraint("Equal", 3, 0),
    Sketcher.Constraint("DistanceX", 1, 1, 1, 2, Q("18 mm")),
    Sketcher.Constraint("DistanceX", 0, 2, -1, 1, Q("35.687329 mm")),
    Sketcher.Constraint("DistanceY", -1, 1, 0, 2, Q("50.883659 mm")),
])
sketch16.setExpression("Constraints[9]", "Params.sketch16_width")
pocket4 = doc.addObject("PartDesign::Pocket", "Pocket003")
body2.addObject(pocket4)
pocket4.Profile = sketch16
pocket4.setExpression("Length", "Params.pocket4_length")
doc.recompute()

fillet = doc.addObject("PartDesign::Fillet", "Fillet")
body2.addObject(fillet)
fillet.Base = (pocket4, edges_at(pocket4, [
    (-16.687, 49.884, 5.5),
    (-16.687, 69.884, 5.5),
    (-16.687, 59.884, 10),
    (-26.687, 69.884, 10),
    (-26.687, 49.884, 10),
    (-36.687, 59.884, 10),
    (-36.687, 49.884, 5.5),
    (-36.687, 69.884, 5.5),
]))
fillet.setExpression("Radius", "Params.fillet_radius")
body3 = doc.addObject("PartDesign::Body", "Body002")

# Sketch on XY plane
sketch17 = doc.addObject("Sketcher::SketchObject", "Sketch016")
body3.addObject(sketch17)
sketch17.AttachmentSupport = (doc.getObject("XY_Plane002"), [""])
sketch17.MapMode = "FlatFace"
add_polygon(sketch17, [(-3, 94), (-3, 76), (15, 76), (15, 94)])  # lines 0-3
sketch17.addConstraint([
    Sketcher.Constraint("Vertical", 0),
    Sketcher.Constraint("Horizontal", 1),
    Sketcher.Constraint("Vertical", 2),
    Sketcher.Constraint("Horizontal", 3),
    Sketcher.Constraint("Equal", 3, 0),
    Sketcher.Constraint("DistanceX", 1, 1, 1, 2, Q("17.8 mm")),
    Sketcher.Constraint("DistanceX", 0, 2, -1, 1, Q("2.688011 mm")),
    Sketcher.Constraint("DistanceY", -1, 1, 0, 2, Q("75.849466 mm")),
])
sketch17.setExpression("Constraints[9]", "Params.sketch17_width")
pad10 = doc.addObject("PartDesign::Pad", "Pad009")
body3.addObject(pad10)
pad10.Profile = sketch17
pad10.setExpression("Length", "Params.pad10_length")
body4 = doc.addObject("PartDesign::Body", "Body003")

# Sketch on XY plane
sketch18 = doc.addObject("Sketcher::SketchObject", "Sketch017")
body4.addObject(sketch18)
sketch18.AttachmentSupport = (doc.getObject("XY_Plane003"), [""])
sketch18.MapMode = "FlatFace"
add_polygon(sketch18, [(102.4, 32), (102.4, 0), (205.4, 0), (205.4, 32)])  # lines 0-3
sketch18.addGeometry(Part.Circle(App.Vector(106.4, 6, 0), App.Vector(0, 0, 1), 1.5), False)  # 4
add_polygon(sketch18, [(140.6, 3.8), (120.2, 3.8), (120.2, 24.2), (140.6, 24.2)])  # lines 5-8
sketch18.addGeometry(Part.Circle(App.Vector(153.9, 13, 0), App.Vector(0, 0, 1), 8.1), False)  # 9
sketch18.addGeometry(Part.Circle(App.Vector(177.9, 13, 0), App.Vector(0, 0, 1), 4.6), False)  # 10
sketch18.addGeometry(Part.Circle(App.Vector(201.4, 26, 0), App.Vector(0, 0, 1), 1.5), False)  # 11
sketch18.addConstraint([
    Sketcher.Constraint("Vertical", 0),
    Sketcher.Constraint("Horizontal", 1),
    Sketcher.Constraint("Vertical", 2),
    Sketcher.Constraint("Horizontal", 3),
    Sketcher.Constraint("Horizontal", 5),
    Sketcher.Constraint("Vertical", 6),
    Sketcher.Constraint("Horizontal", 7),
    Sketcher.Constraint("Vertical", 8),
    Sketcher.Constraint("Equal", 4, 11),
    Sketcher.Constraint("PointOnObject", 0, 2, -1),
    Sketcher.Constraint("Horizontal", 9, 3, 10, 3),
    Sketcher.Constraint("Equal", 7, 6),
    Sketcher.Constraint("Diameter", 4, Q("3 mm")),
    Sketcher.Constraint("Diameter", 9, Q("16.2 mm")),
    Sketcher.Constraint("Diameter", 10, Q("9.2 mm")),
    Sketcher.Constraint("DistanceX", 1, 1, 1, 2, Q("103 mm")),
    Sketcher.Constraint("DistanceY", 0, 2, 0, 1, Q("32 mm")),
    Sketcher.Constraint("DistanceX", 5, 2, 5, 1, Q("20.4 mm")),
    Sketcher.Constraint("DistanceY", -1, 1, 4, 3, Q("6 mm")),
    Sketcher.Constraint("DistanceY", -1, 1, 9, 3, Q("13 mm")),
    Sketcher.Constraint("DistanceY", -1, 1, 11, 3, Q("26 mm")),
    Sketcher.Constraint("DistanceX", 9, 3, 10, 3, Q("24 mm")),
    Sketcher.Constraint("DistanceX", 4, 3, 11, 3, Q("95 mm")),
    Sketcher.Constraint("DistanceX", 0, 2, 4, 3, Q("4 mm")),
    Sketcher.Constraint("DistanceY", -1, 1, 5, 2, Q("3.8 mm")),
    Sketcher.Constraint("DistanceX", 4, 3, 9, 3, Q("47.5 mm")),
    Sketcher.Constraint("DistanceX", 4, 3, 5, 2, Q("13.8 mm")),
    Sketcher.Constraint("DistanceX", -1, 1, 4, 3, Q("106.363519 mm")),
])
sketch18.setExpression("Constraints[20]", "Params.sketch18_diameter")
sketch18.setExpression("Constraints[21]", "Params.sketch18_diameter2")
sketch18.setExpression("Constraints[22]", "Params.sketch18_diameter3")
sketch18.setExpression("Constraints[23]", "Params.sketch18_width")
sketch18.setExpression("Constraints[24]", "Params.sketch18_height")
pad11 = doc.addObject("PartDesign::Pad", "Pad010")
body4.addObject(pad11)
pad11.Profile = sketch18
pad11.setExpression("Length", "Params.pad11_length")

# Sketch on XY plane
sketch19 = doc.addObject("Sketcher::SketchObject", "Sketch018")
body4.addObject(sketch19)
sketch19.AttachmentSupport = (doc.getObject("XY_Plane003"), [""])
sketch19.MapMode = "FlatFace"
add_polygon(sketch19, [(103, 1), (103, 31), (204, 31), (204, 1)])  # lines 0-3
sketch19.addConstraint([
    Sketcher.Constraint("Vertical", 0),
    Sketcher.Constraint("Horizontal", 1),
    Sketcher.Constraint("Vertical", 2),
    Sketcher.Constraint("Horizontal", 3),
    Sketcher.Constraint("DistanceX", 1, 1, 1, 2, Q("101 mm")),
    Sketcher.Constraint("DistanceY", 0, 1, 0, 2, Q("30 mm")),
    Sketcher.Constraint("DistanceY", -1, 1, 0, 2, Q("31 mm")),
    Sketcher.Constraint("DistanceX", -1, 1, 0, 2, Q("103.363519 mm")),
])
sketch19.setExpression("Constraints[8]", "Params.sketch19_width")
sketch19.setExpression("Constraints[9]", "Params.sketch19_height")
pocket5 = doc.addObject("PartDesign::Pocket", "Pocket004")
body4.addObject(pocket5)
pocket5.Profile = sketch19
pocket5.setExpression("Length", "Params.pocket5_length")
pocket5.Reversed = True
doc.recompute()

fillet2 = doc.addObject("PartDesign::Fillet", "Fillet001")
body4.addObject(fillet2)
fillet2.Base = (pocket5, edges_at(pocket5, [
    (102.364, 16, 5),
    (153.864, 32, 5),
    (153.864, 0, 5),
    (205.364, 16, 5),
    (205.364, 32, 2.5),
    (205.364, 0, 2.5),
    (102.364, 32, 2.5),
    (102.364, 0, 2.5),
]))
fillet2.setExpression("Radius", "Params.fillet2_radius")
body5 = doc.addObject("PartDesign::Body", "Body004")

# Sketch on XY plane
sketch20 = doc.addObject("Sketcher::SketchObject", "Sketch019")
body5.addObject(sketch20)
sketch20.AttachmentSupport = (doc.getObject("XY_Plane004"), [""])
sketch20.MapMode = "FlatFace"
sketch20.AttachmentOffset = App.Placement(App.Vector(0, 0, 1.5), App.Rotation())
add_polygon(sketch20, [(12.5, 2), (12.5, -8), (35.5, -8), (35.5, 2)])  # lines 0-3
sketch20.addGeometry(Part.Circle(App.Vector(16, -3, 0), App.Vector(0, 0, 1), 1.5), False)  # 4
sketch20.addGeometry(Part.Circle(App.Vector(32, -3, 0), App.Vector(0, 0, 1), 1.5), False)  # 5
sketch20.addConstraint([
    Sketcher.Constraint("Vertical", 0),
    Sketcher.Constraint("Horizontal", 1),
    Sketcher.Constraint("Vertical", 2),
    Sketcher.Constraint("Horizontal", 3),
    Sketcher.Constraint("Equal", 4, 5),
    Sketcher.Constraint("Horizontal", 4, 3, 5, 3),
    Sketcher.Constraint("Diameter", 4, Q("3 mm")),
    Sketcher.Constraint("DistanceX", 1, 1, 1, 2, Q("23 mm")),
    Sketcher.Constraint("DistanceY", 0, 2, 0, 1, Q("10 mm")),
    Sketcher.Constraint("DistanceX", -1, 1, 4, 3, Q("16 mm")),
    Sketcher.Constraint("DistanceY", 4, 3, -1, 1, Q("3 mm")),
    Sketcher.Constraint("DistanceX", -1, 1, 5, 3, Q("32 mm")),
    Sketcher.Constraint("DistanceY", 0, 2, -1, 1, Q("8 mm")),
    Sketcher.Constraint("DistanceX", -1, 1, 0, 2, Q("12.5 mm")),
])
sketch20.setExpression("Constraints[10]", "Params.sketch20_diameter")
sketch20.setExpression("Constraints[11]", "Params.sketch20_width")
sketch20.setExpression("Constraints[12]", "Params.sketch20_height")
pad12 = doc.addObject("PartDesign::Pad", "Pad011")
body5.addObject(pad12)
pad12.Profile = sketch20
pad12.setExpression("Length", "Params.pad12_length")

# Sketch on XY plane
sketch21 = doc.addObject("Sketcher::SketchObject", "Sketch020")
body5.addObject(sketch21)
sketch21.AttachmentSupport = (doc.getObject("XY_Plane004"), [""])
sketch21.MapMode = "FlatFace"
sketch21.AttachmentOffset = App.Placement(App.Vector(0, 0, 4.5), App.Rotation())
sketch21.addGeometry(Part.Circle(App.Vector(24, -3, 0), App.Vector(0, 0, 1), 4.5), False)
sketch21.addConstraint([
    Sketcher.Constraint("Diameter", 0, Q("9 mm")),
    Sketcher.Constraint("DistanceX", -1, 1, 0, 3, Q("24 mm")),
    Sketcher.Constraint("DistanceY", 0, 3, -1, 1, Q("3 mm")),
])
sketch21.setExpression("Constraints[0]", "Params.sketch21_diameter")
pad13 = doc.addObject("PartDesign::Pad", "Pad012")
body5.addObject(pad13)
pad13.Profile = sketch21
pad13.setExpression("Length", "Params.pad13_length")

# Sketch on XY plane
sketch22 = doc.addObject("Sketcher::SketchObject", "Sketch021")
body5.addObject(sketch22)
sketch22.AttachmentSupport = (doc.getObject("XY_Plane004"), [""])
sketch22.MapMode = "FlatFace"
sketch22.AttachmentOffset = App.Placement(App.Vector(0, 0, 16.5), App.Rotation())
sketch22.addGeometry(Part.Circle(App.Vector(24, -3, 0), App.Vector(0, 0, 1), 3.1), False)
sketch22.addConstraint([
    Sketcher.Constraint("Diameter", 0, Q("6.2 mm")),
    Sketcher.Constraint("DistanceX", -1, 1, 0, 3, Q("24 mm")),
    Sketcher.Constraint("DistanceY", 0, 3, -1, 1, Q("3 mm")),
])
sketch22.setExpression("Constraints[0]", "Params.sketch22_diameter")
pocket6 = doc.addObject("PartDesign::Pocket", "Pocket005")
body5.addObject(pocket6)
pocket6.Profile = sketch22
pocket6.setExpression("Length", "Params.pocket6_length")

# Sketch on XY plane
sketch23 = doc.addObject("Sketcher::SketchObject", "Sketch022")
body5.addObject(sketch23)
sketch23.AttachmentSupport = (doc.getObject("XY_Plane004"), [""])
sketch23.MapMode = "FlatFace"
sketch23.AttachmentOffset = App.Placement(App.Vector(0, 0, 16.5), App.Rotation())
sketch23.addGeometry(Part.Circle(App.Vector(24, -3, 0), App.Vector(0, 0, 1), 3.8), False)
sketch23.addConstraint([
    Sketcher.Constraint("Diameter", 0, Q("7.5 mm")),
    Sketcher.Constraint("DistanceX", -1, 1, 0, 3, Q("24 mm")),
    Sketcher.Constraint("DistanceY", 0, 3, -1, 1, Q("3 mm")),
])
sketch23.setExpression("Constraints[0]", "Params.sketch23_diameter")
pocket7 = doc.addObject("PartDesign::Pocket", "Pocket006")
body5.addObject(pocket7)
pocket7.Profile = sketch23
pocket7.setExpression("Length", "Params.pocket7_length")

doc.recompute()
